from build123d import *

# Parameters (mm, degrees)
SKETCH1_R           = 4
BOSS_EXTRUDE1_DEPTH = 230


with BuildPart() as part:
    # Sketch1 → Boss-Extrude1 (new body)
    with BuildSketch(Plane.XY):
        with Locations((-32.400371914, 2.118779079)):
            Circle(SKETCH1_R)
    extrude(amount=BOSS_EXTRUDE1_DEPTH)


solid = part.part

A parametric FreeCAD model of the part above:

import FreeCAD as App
import Part
import Sketcher
from FreeCAD import Vector
Q = App.Units.Quantity

doc = App.newDocument("Part")
body = doc.addObject("PartDesign::Body", "Body")

sketch1 = doc.addObject("Sketcher::SketchObject", "Sketch")
body.addObject(sketch1)
sketch1.AttachmentSupport = (doc.XY_Plane, [""])
sketch1.MapMode = "FlatFace"
sketch1.addGeometry(Part.Circle(Vector(-32.4, 2.1, 0), Vector(0, 0, 1), 4), False)
sketch1.addConstraint([
    Sketcher.Constraint("Diameter", 0, Q("8 mm")),
    Sketcher.Constraint("DistanceX", 0, 3, -1, 1, Q("32.400372 mm")),
    Sketcher.Constraint("DistanceY", -1, 1, 0, 3, Q("2.118779 mm")),
])
pad1 = doc.addObject("PartDesign::Pad", "Pad")
body.addObject(pad1)
pad1.Profile = sketch1
pad1.Length = 230

doc.recompute()
